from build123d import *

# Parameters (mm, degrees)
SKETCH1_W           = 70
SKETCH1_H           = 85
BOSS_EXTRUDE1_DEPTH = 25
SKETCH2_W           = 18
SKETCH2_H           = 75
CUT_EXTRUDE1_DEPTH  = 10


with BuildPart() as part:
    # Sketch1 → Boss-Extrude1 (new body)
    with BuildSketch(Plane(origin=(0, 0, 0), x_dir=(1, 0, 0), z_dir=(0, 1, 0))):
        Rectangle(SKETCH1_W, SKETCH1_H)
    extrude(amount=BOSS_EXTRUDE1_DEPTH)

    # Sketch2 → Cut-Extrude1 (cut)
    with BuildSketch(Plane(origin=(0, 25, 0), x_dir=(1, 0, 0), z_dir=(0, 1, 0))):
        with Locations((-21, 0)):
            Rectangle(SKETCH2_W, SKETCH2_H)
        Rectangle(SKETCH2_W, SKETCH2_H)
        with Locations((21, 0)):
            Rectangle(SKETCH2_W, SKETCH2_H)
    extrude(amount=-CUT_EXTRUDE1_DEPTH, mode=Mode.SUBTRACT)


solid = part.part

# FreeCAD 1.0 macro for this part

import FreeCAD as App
import Part
import Sketcher

V = App.Vector


def add_polygon(sketch, points):
    """Adds a closed chain of lines whose ends are joined by coincident constraints."""
    first, n = sketch.GeometryCount, len(points)
    for a, b in zip(points, points[1:] + points[:1]):
        sketch.addGeometry(Part.LineSegment(App.Vector(*a, 0), App.Vector(*b, 0)), False)
    for i in range(n):
        sketch.addConstraint(Sketcher.Constraint("Coincident", first + i, 2, first + (i + 1) % n, 1))

doc = App.newDocument("Part")
body = doc.addObject("PartDesign::Body", "Body")

# Sketch on XZ plane
sketch1 = body.newObject("Sketcher::SketchObject", "Sketch")
sketch1.AttachmentSupport = (doc.getObject("XZ_Plane"), [""])
sketch1.MapMode = "FlatFace"
add_polygon(sketch1, [(-35, -42.5), (-35, 42.5), (35, 42.5), (35, -42.5)])  # lines 0-3
sketch1.addConstraint(Sketcher.Constraint("Vertical", 0))
sketch1.addConstraint(Sketcher.Constraint("Horizontal", 1))
sketch1.addConstraint(Sketcher.Constraint("Vertical", 2))
sketch1.addConstraint(Sketcher.Constraint("Horizontal", 3))
sketch1.addConstraint(Sketcher.Constraint("Symmetric", 0, 2, 2, 2, -1, 1))
sketch1.addConstraint(Sketcher.Constraint("DistanceX", 1, 1, 1, 2, 70.0))
sketch1.addConstraint(Sketcher.Constraint("DistanceY", 0, 1, 0, 2, 85.0))
pad1 = body.newObject("PartDesign::Pad", "Pad")
pad1.Profile = sketch1
pad1.Length = 25
pad1.Reversed = True

# Sketch on XZ plane
sketch2 = body.newObject("Sketcher::SketchObject", "Sketch001")
sketch2.AttachmentSupport = (doc.getObject("XZ_Plane"), [""])
sketch2.MapMode = "FlatFace"
sketch2.AttachmentOffset = App.Placement(V(0, 0, -25), App.Rotation())
add_polygon(sketch2, [(-30, -37.5), (-30, 37.5), (-12, 37.5), (-12, -37.5)])  # lines 0-3
add_polygon(sketch2, [(-9, -37.5), (-9, 37.5), (9, 37.5), (9, -37.5)])  # lines 4-7
add_polygon(sketch2, [(12, -37.5), (12, 37.5), (30, 37.5), (30, -37.5)])  # lines 8-11
sketch2.addConstraint(Sketcher.Constraint("Vertical", 0))
sketch2.addConstraint(Sketcher.Constraint("Horizontal", 1))
sketch2.addConstraint(Sketcher.Constraint("Vertical", 2))
sketch2.addConstraint(Sketcher.Constraint("Horizontal", 3))
sketch2.addConstraint(Sketcher.Constraint("Vertical", 4))
sketch2.addConstraint(Sketcher.Constraint("Horizontal", 5))
sketch2.addConstraint(Sketcher.Constraint("Vertical", 6))
sketch2.addConstraint(Sketcher.Constraint("Horizontal", 7))
sketch2.addConstraint(Sketcher.Constraint("Vertical", 8))
sketch2.addConstraint(Sketcher.Constraint("Horizontal", 9))
sketch2.addConstraint(Sketcher.Constraint("Vertical", 10))
sketch2.addConstraint(Sketcher.Constraint("Horizontal", 11))
sketch2.addConstraint(Sketcher.Constraint("Symmetric", 4, 2, 6, 2, -1, 1))
sketch2.addConstraint(Sketcher.Constraint("Symmetric", 2, 2, 8, 2, -1, 1))
sketch2.addConstraint(Sketcher.Constraint("Symmetric", 0, 2, 10, 2, -1, 1))
sketch2.addConstraint(Sketcher.Constraint("Horizontal", 1, 2, 4, 2))
sketch2.addConstraint(Sketcher.Constraint("Horizontal", 3, 2, 6, 2))
sketch2.addConstraint(Sketcher.Constraint("Equal", 3, 5))
sketch2.addConstraint(Sketcher.Constraint("DistanceX", 1, 1, 1, 2, 18.0))
sketch2.addConstraint(Sketcher.Constraint("DistanceY", 0, 1, 0, 2, 75.0))
sketch2.addConstraint(Sketcher.Constraint("DistanceX", 0, 2, -1, 1, 30.0))
pocket1 = body.newObject("PartDesign::Pocket", "Pocket")
pocket1.Profile = sketch2
pocket1.Length = 10
pocket1.Reversed = True

doc.recompute()
